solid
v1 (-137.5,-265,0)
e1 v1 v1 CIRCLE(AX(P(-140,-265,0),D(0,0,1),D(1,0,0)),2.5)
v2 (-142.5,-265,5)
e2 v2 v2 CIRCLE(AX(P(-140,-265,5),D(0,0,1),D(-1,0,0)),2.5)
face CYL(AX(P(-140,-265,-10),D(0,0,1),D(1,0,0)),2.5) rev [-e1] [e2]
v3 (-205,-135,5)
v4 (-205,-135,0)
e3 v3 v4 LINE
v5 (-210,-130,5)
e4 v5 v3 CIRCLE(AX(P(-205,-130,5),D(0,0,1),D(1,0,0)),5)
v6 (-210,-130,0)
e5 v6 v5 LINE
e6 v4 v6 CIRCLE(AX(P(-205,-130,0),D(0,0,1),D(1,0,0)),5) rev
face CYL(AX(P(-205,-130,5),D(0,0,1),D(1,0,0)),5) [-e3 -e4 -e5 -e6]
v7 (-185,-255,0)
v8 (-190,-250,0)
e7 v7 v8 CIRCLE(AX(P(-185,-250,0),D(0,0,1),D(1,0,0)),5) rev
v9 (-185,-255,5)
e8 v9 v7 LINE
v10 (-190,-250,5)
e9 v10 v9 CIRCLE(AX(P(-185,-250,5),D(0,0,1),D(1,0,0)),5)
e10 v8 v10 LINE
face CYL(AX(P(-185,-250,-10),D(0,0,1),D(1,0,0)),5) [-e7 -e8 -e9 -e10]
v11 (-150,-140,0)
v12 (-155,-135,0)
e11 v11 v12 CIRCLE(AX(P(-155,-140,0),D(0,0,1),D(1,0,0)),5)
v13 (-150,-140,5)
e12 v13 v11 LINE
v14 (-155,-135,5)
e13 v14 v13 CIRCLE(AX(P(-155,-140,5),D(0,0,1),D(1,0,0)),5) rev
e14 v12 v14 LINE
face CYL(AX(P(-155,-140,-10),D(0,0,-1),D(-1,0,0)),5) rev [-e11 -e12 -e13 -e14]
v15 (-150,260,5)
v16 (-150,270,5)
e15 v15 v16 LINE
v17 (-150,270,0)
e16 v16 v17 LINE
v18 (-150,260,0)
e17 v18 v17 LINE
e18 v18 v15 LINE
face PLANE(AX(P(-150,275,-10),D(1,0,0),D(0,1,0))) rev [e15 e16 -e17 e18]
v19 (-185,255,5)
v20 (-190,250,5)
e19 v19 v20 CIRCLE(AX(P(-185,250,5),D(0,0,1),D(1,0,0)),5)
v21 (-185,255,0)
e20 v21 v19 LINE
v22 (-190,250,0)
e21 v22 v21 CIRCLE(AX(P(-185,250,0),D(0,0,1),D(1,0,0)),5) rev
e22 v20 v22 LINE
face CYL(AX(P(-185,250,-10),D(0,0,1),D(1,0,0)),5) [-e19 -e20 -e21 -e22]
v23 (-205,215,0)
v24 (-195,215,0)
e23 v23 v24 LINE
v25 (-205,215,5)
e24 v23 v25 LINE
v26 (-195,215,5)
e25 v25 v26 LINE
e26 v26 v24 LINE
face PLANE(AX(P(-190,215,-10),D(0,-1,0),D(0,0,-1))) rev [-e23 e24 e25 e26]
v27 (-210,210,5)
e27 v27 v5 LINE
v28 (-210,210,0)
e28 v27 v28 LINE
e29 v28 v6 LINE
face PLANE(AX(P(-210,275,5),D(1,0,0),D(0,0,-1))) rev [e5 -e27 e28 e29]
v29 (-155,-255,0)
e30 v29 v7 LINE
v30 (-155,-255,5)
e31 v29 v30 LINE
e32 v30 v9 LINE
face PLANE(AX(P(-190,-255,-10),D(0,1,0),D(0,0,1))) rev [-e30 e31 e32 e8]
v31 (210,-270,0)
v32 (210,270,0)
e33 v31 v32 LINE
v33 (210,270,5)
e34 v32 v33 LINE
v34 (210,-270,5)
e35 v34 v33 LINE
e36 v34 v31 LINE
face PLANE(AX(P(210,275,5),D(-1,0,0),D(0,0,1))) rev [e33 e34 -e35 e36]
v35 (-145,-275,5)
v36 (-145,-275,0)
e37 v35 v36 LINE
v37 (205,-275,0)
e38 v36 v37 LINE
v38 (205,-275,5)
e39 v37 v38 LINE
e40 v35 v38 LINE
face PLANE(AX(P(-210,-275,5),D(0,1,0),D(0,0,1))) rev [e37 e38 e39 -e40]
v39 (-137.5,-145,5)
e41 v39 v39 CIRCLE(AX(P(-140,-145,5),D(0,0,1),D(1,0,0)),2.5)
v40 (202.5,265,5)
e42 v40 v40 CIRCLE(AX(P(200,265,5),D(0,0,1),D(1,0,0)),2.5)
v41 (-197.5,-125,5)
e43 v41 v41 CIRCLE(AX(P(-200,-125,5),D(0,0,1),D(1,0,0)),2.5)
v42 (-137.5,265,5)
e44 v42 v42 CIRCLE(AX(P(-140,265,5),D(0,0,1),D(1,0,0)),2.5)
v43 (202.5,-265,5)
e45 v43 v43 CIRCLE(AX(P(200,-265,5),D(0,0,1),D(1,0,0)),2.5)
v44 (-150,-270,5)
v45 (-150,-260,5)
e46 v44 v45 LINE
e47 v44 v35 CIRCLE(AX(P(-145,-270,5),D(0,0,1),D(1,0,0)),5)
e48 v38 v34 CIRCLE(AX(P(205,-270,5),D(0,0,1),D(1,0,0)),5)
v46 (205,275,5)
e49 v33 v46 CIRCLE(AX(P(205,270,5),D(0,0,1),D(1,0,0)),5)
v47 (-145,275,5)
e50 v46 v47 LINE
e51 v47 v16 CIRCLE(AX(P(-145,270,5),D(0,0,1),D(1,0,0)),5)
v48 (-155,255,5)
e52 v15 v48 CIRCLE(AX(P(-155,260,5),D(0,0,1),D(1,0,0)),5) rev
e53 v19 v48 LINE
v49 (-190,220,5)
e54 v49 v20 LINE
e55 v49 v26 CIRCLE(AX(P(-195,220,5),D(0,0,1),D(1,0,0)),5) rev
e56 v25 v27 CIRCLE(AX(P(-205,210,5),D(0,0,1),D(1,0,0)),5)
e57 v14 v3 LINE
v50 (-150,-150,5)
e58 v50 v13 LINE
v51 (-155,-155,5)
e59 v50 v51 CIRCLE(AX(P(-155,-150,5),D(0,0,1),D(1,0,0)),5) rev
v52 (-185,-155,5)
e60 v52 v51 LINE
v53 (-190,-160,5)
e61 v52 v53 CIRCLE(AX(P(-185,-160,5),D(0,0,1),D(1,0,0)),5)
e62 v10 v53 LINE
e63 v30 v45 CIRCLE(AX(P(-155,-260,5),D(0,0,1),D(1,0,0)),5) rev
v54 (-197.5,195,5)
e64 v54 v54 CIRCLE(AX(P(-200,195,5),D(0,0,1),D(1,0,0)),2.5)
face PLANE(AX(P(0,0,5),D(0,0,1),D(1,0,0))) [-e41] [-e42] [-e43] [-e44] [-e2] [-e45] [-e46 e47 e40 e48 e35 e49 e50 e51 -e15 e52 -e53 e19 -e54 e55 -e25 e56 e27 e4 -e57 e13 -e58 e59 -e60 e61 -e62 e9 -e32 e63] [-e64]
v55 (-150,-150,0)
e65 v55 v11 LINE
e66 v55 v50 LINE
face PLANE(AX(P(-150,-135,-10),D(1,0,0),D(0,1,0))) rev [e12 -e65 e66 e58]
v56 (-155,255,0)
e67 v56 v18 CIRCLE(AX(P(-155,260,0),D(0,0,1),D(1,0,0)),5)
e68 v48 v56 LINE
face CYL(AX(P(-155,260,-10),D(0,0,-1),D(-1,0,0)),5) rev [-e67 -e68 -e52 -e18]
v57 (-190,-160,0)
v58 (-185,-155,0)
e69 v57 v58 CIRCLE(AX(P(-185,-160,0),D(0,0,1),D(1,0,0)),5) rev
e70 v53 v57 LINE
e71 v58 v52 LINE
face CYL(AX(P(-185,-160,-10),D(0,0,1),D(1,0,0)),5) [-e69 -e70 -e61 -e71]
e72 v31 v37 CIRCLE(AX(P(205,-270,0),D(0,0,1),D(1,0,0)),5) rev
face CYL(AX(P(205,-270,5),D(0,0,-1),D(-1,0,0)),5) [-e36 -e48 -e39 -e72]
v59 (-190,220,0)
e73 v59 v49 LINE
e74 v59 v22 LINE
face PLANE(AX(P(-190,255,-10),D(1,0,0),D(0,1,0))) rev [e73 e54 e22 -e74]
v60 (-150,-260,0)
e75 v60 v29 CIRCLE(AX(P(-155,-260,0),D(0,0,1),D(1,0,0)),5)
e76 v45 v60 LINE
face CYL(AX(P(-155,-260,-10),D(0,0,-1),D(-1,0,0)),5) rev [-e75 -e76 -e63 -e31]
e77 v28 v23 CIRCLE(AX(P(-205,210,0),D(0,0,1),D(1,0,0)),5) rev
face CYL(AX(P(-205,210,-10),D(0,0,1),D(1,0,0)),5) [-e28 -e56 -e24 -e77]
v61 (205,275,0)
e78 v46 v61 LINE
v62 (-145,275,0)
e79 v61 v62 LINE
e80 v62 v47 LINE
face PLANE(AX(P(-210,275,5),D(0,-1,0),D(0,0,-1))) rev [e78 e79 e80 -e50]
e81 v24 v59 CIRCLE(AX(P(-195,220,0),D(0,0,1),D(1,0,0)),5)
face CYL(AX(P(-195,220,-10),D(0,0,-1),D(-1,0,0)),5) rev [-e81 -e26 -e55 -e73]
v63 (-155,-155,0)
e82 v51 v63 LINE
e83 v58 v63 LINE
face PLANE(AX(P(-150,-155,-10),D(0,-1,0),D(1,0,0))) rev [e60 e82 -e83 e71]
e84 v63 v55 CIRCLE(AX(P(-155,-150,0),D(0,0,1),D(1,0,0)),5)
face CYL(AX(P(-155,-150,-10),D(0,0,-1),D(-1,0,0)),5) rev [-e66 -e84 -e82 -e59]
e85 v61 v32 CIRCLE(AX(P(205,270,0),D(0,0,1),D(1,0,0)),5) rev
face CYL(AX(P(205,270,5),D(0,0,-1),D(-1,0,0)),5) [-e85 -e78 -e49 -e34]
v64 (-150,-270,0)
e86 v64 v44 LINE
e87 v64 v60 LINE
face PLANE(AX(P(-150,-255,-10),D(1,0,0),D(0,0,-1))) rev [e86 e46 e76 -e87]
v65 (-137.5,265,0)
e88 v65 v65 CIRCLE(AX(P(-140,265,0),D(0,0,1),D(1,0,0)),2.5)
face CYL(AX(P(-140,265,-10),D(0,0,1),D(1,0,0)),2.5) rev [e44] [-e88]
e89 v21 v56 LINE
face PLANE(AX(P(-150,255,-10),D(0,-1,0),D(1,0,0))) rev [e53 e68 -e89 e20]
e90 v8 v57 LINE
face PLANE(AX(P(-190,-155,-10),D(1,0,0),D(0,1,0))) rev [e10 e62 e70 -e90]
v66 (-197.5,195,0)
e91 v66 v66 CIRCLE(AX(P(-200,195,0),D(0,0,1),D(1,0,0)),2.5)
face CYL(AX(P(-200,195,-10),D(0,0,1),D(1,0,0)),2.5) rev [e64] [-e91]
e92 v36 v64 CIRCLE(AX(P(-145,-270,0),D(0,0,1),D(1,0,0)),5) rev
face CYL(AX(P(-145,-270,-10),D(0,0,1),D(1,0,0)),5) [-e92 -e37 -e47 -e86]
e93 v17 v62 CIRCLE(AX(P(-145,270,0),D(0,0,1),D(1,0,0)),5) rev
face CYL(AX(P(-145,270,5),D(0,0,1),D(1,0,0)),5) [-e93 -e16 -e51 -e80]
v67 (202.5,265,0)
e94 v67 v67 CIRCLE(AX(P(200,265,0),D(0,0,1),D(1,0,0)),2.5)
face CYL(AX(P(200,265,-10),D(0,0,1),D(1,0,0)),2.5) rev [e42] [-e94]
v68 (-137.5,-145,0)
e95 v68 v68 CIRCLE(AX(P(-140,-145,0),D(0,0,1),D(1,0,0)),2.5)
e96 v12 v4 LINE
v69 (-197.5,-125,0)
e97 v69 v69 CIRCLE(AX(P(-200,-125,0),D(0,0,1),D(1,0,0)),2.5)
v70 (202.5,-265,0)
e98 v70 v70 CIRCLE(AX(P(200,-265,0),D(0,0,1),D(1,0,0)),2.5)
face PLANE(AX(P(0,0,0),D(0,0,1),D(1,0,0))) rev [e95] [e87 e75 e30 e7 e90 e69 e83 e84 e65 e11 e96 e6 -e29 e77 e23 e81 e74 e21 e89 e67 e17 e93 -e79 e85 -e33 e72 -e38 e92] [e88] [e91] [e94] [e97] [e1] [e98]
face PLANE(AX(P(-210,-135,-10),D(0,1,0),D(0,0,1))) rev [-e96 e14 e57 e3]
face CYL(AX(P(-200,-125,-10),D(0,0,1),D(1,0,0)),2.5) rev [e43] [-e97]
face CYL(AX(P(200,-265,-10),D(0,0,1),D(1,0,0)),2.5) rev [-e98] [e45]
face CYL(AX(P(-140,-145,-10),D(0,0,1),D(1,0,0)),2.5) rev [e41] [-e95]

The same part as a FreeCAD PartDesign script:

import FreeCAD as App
import Part
import Sketcher

V = App.Vector
Q = App.Units.Quantity


def edges_at(feature, points):
    """Names of the edges that pass closest to the given points."""
    edges = feature.Shape.Edges
    near = lambda p: min(range(len(edges)), key=lambda i: edges[i].distToShape(Part.Vertex(*p))[0])
    return sorted({f"Edge{near(p) + 1}" for p in points})


def add_polygon(sketch, points):
    """Adds a closed chain of lines whose ends are joined by coincident constraints."""
    first, n = sketch.GeometryCount, len(points)
    for a, b in zip(points, points[1:] + points[:1]):
        sketch.addGeometry(Part.LineSegment(App.Vector(*a, 0), App.Vector(*b, 0)), False)
    for i in range(n):
        sketch.addConstraint(Sketcher.Constraint("Coincident", first + i, 2, first + (i + 1) % n, 1))

doc = App.newDocument("Part")
body = doc.addObject("PartDesign::Body", "Body")

# Sketch on XY plane
sketch1 = body.newObject("Sketcher::SketchObject", "Sketch")
sketch1.AttachmentSupport = (doc.getObject("XY_Plane"), [""])
sketch1.MapMode = "FlatFace"
add_polygon(sketch1, [(-210, 275), (-210, -275), (210, -275), (210, 275)])  # lines 0-3
sketch1.addConstraint(Sketcher.Constraint("Vertical", 0))
sketch1.addConstraint(Sketcher.Constraint("Horizontal", 1))
sketch1.addConstraint(Sketcher.Constraint("Vertical", 2))
sketch1.addConstraint(Sketcher.Constraint("Horizontal", 3))
sketch1.addConstraint(Sketcher.Constraint("Symmetric", 0, 2, 2, 2, -1, 1))
sketch1.addConstraint(Sketcher.Constraint("DistanceX", 1, 1, 1, 2, Q("420 mm")))
sketch1.addConstraint(Sketcher.Constraint("DistanceY", 0, 2, 0, 1, Q("550 mm")))
pad1 = body.newObject("PartDesign::Pad", "Pad")
pad1.Profile = sketch1
pad1.Length = 5

# Sketch on XY plane
sketch2 = body.newObject("Sketcher::SketchObject", "Sketch001")
sketch2.AttachmentSupport = (doc.getObject("XY_Plane"), [""])
sketch2.MapMode = "FlatFace"
sketch2.AttachmentOffset = App.Placement(V(0, 0, 5), App.Rotation())
sketch2.addGeometry(Part.Circle(V(-200, 195, 0), V(0, 0, 1), 2.5), False)  # 0
sketch2.addGeometry(Part.Circle(V(-140, 265, 0), V(0, 0, 1), 2.5), False)  # 1
sketch2.addGeometry(Part.Circle(V(-140, -265, 0), V(0, 0, 1), 2.5), False)  # 2
sketch2.addGeometry(Part.Circle(V(-140, -145, 0), V(0, 0, 1), 2.5), False)  # 3
sketch2.addGeometry(Part.Circle(V(-200, -125, 0), V(0, 0, 1), 2.5), False)  # 4
sketch2.addGeometry(Part.Circle(V(200, 265, 0), V(0, 0, 1), 2.5), False)  # 5
sketch2.addGeometry(Part.Circle(V(200, -265, 0), V(0, 0, 1), 2.5), False)  # 6
add_polygon(sketch2, [(-190, 215), (-190, 255), (-150, 255), (-150, 275), (-210, 275), (-210, 215)])  # lines 7-12
add_polygon(sketch2, [(-150, -255), (-190, -255), (-190, -155), (-150, -155), (-150, -135), (-210, -135), (-210, -275), (-150, -275)])  # lines 13-20
sketch2.addConstraint(Sketcher.Constraint("Vertical", 7))
sketch2.addConstraint(Sketcher.Constraint("Horizontal", 8))
sketch2.addConstraint(Sketcher.Constraint("Vertical", 9))
sketch2.addConstraint(Sketcher.Constraint("Horizontal", 10))
sketch2.addConstraint(Sketcher.Constraint("Vertical", 11))
sketch2.addConstraint(Sketcher.Constraint("Horizontal", 12))
sketch2.addConstraint(Sketcher.Constraint("Horizontal", 13))
sketch2.addConstraint(Sketcher.Constraint("Vertical", 14))
sketch2.addConstraint(Sketcher.Constraint("Horizontal", 15))
sketch2.addConstraint(Sketcher.Constraint("Vertical", 16))
sketch2.addConstraint(Sketcher.Constraint("Horizontal", 17))
sketch2.addConstraint(Sketcher.Constraint("Vertical", 18))
sketch2.addConstraint(Sketcher.Constraint("Horizontal", 19))
sketch2.addConstraint(Sketcher.Constraint("Vertical", 20))
sketch2.addConstraint(Sketcher.Constraint("Equal", 0, 1))
sketch2.addConstraint(Sketcher.Constraint("Equal", 1, 2))
sketch2.addConstraint(Sketcher.Constraint("Equal", 2, 3))
sketch2.addConstraint(Sketcher.Constraint("Equal", 3, 4))
sketch2.addConstraint(Sketcher.Constraint("Equal", 4, 5))
sketch2.addConstraint(Sketcher.Constraint("Equal", 5, 6))
sketch2.addConstraint(Sketcher.Constraint("Symmetric", 1, 3, 2, 3, -1))
sketch2.addConstraint(Sketcher.Constraint("Symmetric", 5, 3, 6, 3, -1))
sketch2.addConstraint(Sketcher.Constraint("Symmetric", 7, 2, 13, 2, -1))
sketch2.addConstraint(Sketcher.Constraint("Symmetric", 10, 2, 18, 2, -1))
sketch2.addConstraint(Sketcher.Constraint("Horizontal", 1, 3, 5, 3))
sketch2.addConstraint(Sketcher.Constraint("Vertical", 2, 3, 3, 3))
sketch2.addConstraint(Sketcher.Constraint("Vertical", 0, 3, 4, 3))
sketch2.addConstraint(Sketcher.Constraint("Vertical", 9, 2, 15, 2))
sketch2.addConstraint(Sketcher.Constraint("Vertical", 16, 2, 19, 2))
sketch2.addConstraint(Sketcher.Constraint("Equal", 15, 7))
sketch2.addConstraint(Sketcher.Constraint("Equal", 12, 9))
sketch2.addConstraint(Sketcher.Constraint("Equal", 9, 16))
sketch2.addConstraint(Sketcher.Constraint("Diameter", 0, Q("5 mm")))
sketch2.addConstraint(Sketcher.Constraint("DistanceX", 8, 1, 8, 2, Q("40 mm")))
sketch2.addConstraint(Sketcher.Constraint("DistanceX", 10, 2, 10, 1, Q("60 mm")))
sketch2.addConstraint(Sketcher.Constraint("DistanceY", 14, 1, 14, 2, Q("100 mm")))
sketch2.addConstraint(Sketcher.Constraint("DistanceX", 0, 3, -1, 1, Q("200 mm")))
sketch2.addConstraint(Sketcher.Constraint("DistanceY", -1, 1, 0, 3, Q("195 mm")))
sketch2.addConstraint(Sketcher.Constraint("DistanceX", 1, 3, -1, 1, Q("140 mm")))
sketch2.addConstraint(Sketcher.Constraint("DistanceY", -1, 1, 1, 3, Q("265 mm")))
sketch2.addConstraint(Sketcher.Constraint("DistanceY", 3, 3, -1, 1, Q("145 mm")))
sketch2.addConstraint(Sketcher.Constraint("DistanceY", 4, 3, -1, 1, Q("125 mm")))
sketch2.addConstraint(Sketcher.Constraint("DistanceX", -1, 1, 5, 3, Q("200 mm")))
sketch2.addConstraint(Sketcher.Constraint("DistanceX", 7, 2, -1, 1, Q("190 mm")))
sketch2.addConstraint(Sketcher.Constraint("DistanceY", -1, 1, 7, 2, Q("255 mm")))
pocket1 = body.newObject("PartDesign::Pocket", "Pocket")
pocket1.Profile = sketch2
pocket1.Length = 15
doc.recompute()

fillet = body.newObject("PartDesign::Fillet", "Fillet")
fillet.Base = (pocket1, edges_at(pocket1, [
    (-210, -135, 2.5),
    (-150, -135, 2.5),
    (-150, -155, 2.5),
    (-190, -155, 2.5),
    (-190, -255, 2.5),
    (-150, -255, 2.5),
    (-150, -275, 2.5),
    (-150, 275, 2.5),
    (-150, 255, 2.5),
    (-190, 255, 2.5),
    (-190, 215, 2.5),
    (-210, 215, 2.5),
    (210, -275, 2.5),
    (210, 275, 2.5),
]))
fillet.Radius = 5

doc.recompute()
